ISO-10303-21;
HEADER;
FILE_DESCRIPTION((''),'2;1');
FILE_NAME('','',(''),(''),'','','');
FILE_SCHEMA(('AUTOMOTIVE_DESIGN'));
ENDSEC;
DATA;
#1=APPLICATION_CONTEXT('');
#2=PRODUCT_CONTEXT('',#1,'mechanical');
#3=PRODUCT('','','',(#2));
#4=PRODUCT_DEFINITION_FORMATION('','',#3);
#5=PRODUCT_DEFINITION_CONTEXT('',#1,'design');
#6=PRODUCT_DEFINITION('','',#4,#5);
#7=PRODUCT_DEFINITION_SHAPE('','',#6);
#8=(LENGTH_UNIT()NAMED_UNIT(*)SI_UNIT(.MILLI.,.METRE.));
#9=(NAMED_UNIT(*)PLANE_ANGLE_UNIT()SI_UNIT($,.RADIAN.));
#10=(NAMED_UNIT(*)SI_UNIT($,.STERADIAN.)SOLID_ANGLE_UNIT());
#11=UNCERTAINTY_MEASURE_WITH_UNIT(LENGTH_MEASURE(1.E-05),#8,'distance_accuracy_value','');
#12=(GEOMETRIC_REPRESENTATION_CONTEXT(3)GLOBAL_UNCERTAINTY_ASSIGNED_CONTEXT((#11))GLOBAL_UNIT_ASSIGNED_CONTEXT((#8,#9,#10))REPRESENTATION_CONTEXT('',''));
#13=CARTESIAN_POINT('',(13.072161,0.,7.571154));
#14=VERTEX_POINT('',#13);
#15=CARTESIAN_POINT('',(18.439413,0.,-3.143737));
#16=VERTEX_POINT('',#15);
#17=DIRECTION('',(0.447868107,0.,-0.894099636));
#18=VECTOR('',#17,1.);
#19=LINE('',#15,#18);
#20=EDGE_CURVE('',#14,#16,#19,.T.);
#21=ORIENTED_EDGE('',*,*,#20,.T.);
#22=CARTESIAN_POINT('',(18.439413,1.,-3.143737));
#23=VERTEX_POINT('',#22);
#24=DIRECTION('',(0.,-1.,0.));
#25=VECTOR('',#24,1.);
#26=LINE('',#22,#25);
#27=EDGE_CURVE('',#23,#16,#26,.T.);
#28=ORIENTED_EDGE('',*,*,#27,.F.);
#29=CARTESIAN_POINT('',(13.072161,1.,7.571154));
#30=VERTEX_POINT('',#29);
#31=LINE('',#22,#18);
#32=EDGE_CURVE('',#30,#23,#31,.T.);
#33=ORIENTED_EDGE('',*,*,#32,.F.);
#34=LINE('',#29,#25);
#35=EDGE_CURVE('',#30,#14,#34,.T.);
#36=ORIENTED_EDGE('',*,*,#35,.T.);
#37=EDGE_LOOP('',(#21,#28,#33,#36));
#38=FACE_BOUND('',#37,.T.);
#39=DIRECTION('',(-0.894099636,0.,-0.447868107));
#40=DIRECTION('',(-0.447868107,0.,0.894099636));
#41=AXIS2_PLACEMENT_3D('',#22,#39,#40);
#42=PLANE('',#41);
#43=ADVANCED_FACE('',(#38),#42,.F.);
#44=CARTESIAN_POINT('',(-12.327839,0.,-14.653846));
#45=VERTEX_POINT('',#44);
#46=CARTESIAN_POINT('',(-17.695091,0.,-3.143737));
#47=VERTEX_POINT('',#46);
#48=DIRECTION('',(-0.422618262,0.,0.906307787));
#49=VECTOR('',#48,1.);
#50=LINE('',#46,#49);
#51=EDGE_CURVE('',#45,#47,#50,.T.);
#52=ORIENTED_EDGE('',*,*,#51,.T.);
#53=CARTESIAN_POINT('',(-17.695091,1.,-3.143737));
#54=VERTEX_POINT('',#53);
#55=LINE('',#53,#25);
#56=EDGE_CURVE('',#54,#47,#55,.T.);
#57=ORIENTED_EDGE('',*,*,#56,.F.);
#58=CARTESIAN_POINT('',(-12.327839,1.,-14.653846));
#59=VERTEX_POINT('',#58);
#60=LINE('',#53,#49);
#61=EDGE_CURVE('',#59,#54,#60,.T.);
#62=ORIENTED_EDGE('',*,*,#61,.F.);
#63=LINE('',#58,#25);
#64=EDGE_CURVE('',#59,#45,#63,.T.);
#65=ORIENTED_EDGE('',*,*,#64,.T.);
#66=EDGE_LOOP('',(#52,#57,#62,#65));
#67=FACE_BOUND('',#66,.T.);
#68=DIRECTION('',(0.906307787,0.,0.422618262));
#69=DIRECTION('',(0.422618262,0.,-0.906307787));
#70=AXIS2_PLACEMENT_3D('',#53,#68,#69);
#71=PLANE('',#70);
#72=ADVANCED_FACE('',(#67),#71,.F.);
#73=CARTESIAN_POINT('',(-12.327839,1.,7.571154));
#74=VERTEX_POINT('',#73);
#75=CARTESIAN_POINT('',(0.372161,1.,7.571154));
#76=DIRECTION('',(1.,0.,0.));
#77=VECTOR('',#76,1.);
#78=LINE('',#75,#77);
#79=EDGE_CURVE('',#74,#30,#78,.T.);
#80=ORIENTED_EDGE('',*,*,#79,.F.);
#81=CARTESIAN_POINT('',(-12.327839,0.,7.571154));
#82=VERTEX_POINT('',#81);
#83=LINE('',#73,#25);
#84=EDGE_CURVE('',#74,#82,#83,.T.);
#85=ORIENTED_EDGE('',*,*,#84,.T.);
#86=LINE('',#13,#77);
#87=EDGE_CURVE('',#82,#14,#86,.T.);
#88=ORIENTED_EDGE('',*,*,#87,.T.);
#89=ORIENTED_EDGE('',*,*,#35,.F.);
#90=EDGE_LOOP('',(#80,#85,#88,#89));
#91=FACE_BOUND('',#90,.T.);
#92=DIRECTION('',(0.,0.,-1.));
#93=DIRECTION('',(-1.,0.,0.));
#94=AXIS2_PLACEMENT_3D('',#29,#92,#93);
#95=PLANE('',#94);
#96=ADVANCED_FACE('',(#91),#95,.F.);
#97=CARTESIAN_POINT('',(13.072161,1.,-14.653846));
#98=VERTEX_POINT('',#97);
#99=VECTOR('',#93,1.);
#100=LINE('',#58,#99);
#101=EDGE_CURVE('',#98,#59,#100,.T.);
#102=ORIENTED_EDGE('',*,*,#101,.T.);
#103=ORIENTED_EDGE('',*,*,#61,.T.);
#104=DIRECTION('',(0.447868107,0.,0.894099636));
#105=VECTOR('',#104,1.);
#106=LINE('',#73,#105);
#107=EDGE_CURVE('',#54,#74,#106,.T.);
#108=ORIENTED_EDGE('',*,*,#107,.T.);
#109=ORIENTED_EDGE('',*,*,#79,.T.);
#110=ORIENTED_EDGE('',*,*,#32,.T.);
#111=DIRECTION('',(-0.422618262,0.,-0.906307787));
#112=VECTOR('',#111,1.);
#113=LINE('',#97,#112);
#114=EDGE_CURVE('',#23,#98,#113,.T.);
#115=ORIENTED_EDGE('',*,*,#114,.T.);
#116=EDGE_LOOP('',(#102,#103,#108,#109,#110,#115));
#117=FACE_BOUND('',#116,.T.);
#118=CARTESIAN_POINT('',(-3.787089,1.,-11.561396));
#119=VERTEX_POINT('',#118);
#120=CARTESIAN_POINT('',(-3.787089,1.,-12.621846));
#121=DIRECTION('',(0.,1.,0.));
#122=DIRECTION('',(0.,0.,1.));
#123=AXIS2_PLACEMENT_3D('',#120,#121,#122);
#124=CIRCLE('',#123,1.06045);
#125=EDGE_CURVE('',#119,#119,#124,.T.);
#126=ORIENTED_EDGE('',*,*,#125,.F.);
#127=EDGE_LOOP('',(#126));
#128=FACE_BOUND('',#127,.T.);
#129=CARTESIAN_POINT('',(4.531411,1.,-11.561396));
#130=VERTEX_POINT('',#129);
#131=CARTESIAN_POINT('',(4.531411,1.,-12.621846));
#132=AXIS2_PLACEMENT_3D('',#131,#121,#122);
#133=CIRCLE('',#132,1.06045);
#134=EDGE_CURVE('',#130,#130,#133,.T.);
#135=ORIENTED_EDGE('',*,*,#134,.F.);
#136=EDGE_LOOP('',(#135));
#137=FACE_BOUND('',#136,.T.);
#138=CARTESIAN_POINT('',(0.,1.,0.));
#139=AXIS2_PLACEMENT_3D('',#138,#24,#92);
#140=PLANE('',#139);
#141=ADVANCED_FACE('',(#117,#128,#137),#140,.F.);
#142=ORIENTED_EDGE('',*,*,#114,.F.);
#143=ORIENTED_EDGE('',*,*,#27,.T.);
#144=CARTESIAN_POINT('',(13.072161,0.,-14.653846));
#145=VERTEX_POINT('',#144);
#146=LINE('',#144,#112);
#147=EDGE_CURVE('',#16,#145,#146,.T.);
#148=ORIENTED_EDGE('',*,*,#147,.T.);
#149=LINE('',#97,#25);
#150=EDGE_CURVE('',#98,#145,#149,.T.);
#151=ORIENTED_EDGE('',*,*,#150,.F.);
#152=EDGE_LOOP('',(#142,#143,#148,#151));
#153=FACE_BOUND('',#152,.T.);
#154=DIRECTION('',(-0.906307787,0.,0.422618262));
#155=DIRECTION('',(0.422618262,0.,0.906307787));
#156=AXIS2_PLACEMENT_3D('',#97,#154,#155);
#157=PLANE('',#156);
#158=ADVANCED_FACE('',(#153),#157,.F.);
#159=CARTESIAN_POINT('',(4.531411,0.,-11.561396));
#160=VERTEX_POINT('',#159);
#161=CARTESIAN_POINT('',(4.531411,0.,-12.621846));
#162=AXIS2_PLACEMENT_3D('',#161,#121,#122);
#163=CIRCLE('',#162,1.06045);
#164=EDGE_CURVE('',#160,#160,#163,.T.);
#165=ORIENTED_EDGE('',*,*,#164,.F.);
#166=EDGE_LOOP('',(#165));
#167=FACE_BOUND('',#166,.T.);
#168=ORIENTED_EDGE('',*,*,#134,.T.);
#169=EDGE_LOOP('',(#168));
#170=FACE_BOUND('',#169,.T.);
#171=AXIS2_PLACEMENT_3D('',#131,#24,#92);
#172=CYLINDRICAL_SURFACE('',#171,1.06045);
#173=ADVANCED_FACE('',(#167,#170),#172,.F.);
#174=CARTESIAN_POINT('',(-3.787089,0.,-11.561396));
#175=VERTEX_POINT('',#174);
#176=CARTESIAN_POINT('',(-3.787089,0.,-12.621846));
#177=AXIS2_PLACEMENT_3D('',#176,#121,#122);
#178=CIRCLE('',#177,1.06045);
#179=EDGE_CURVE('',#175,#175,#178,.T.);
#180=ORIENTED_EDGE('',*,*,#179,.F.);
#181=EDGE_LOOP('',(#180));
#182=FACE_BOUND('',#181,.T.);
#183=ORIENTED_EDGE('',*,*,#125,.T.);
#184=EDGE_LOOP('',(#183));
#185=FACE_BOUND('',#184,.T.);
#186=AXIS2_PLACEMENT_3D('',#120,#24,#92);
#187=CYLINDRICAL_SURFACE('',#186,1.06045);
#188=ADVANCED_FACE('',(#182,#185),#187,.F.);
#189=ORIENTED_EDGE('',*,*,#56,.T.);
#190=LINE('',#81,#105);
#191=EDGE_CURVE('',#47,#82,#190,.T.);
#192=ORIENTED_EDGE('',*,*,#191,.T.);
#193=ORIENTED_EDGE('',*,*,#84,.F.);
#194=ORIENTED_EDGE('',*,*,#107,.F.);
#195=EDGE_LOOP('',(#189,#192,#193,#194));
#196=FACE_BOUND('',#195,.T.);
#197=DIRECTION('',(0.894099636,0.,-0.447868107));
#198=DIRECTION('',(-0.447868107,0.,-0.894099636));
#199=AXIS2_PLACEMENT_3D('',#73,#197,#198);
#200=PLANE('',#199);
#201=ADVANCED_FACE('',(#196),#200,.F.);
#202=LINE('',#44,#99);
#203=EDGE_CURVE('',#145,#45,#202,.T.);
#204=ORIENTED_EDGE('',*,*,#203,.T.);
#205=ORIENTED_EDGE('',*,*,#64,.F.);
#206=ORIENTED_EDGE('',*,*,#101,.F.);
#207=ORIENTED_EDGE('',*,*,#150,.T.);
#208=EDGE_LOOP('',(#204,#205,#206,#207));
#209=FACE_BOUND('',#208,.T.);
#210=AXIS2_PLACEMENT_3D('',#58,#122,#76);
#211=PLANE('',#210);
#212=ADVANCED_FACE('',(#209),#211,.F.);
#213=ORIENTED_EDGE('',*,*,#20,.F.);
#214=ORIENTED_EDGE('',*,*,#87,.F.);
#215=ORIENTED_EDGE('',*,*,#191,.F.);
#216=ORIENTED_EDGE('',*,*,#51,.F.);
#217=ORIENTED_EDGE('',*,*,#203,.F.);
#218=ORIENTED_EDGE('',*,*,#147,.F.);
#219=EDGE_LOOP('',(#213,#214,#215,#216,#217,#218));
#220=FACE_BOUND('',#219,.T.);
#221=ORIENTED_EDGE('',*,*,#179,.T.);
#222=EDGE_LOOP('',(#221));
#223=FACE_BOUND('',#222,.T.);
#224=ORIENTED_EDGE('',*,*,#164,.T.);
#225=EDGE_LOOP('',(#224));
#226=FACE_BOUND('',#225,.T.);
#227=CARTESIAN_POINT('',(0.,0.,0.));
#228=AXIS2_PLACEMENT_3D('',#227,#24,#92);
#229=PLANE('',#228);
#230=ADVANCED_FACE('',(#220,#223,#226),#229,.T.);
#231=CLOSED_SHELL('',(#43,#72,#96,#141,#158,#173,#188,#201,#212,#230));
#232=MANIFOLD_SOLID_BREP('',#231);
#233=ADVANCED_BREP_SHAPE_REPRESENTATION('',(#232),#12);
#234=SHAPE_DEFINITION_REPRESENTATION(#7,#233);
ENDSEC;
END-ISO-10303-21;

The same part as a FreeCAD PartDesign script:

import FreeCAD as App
import Part
import Sketcher
from FreeCAD import Vector
Q = App.Units.Quantity

doc = App.newDocument("Part")
body = doc.addObject("PartDesign::Body", "Body")

# Sketch on XZ plane
sketch1 = body.newObject("Sketcher::SketchObject", "Sketch")
sketch1.AttachmentSupport = (doc.getObject("XZ_Plane"), [""])
sketch1.MapMode = "FlatFace"
sketch1.addGeometry([
    Part.LineSegment(Vector(13.1, -14.7, 0), Vector(-12.3, -14.7, 0)),  # 0
    Part.LineSegment(Vector(-12.3, -14.7, 0), Vector(-17.7, -3.1, 0)),  # 1
    Part.LineSegment(Vector(-17.7, -3.1, 0), Vector(-12.3, 7.6, 0)),  # 2
    Part.LineSegment(Vector(-12.3, 7.6, 0), Vector(13.1, 7.6, 0)),  # 3
    Part.LineSegment(Vector(13.1, 7.6, 0), Vector(18.4, -3.1, 0)),  # 4
    Part.LineSegment(Vector(18.4, -3.1, 0), Vector(13.1, -14.7, 0)),  # 5
    Part.Circle(Vector(4.5, -12.6, 0), Vector(0, 0, 1), 1.1),  # 6
    Part.Circle(Vector(-3.8, -12.6, 0), Vector(0, 0, 1), 1.1),  # 7
], False)
sketch1.addConstraint([
    Sketcher.Constraint("Coincident", 0, 2, 1, 1),
    Sketcher.Constraint("Coincident", 1, 2, 2, 1),
    Sketcher.Constraint("Coincident", 2, 2, 3, 1),
    Sketcher.Constraint("Coincident", 3, 2, 4, 1),
    Sketcher.Constraint("Coincident", 4, 2, 5, 1),
    Sketcher.Constraint("Coincident", 5, 2, 0, 1),
    Sketcher.Constraint("Horizontal", 0),
    Sketcher.Constraint("Horizontal", 3),
    Sketcher.Constraint("Equal", 6, 7),
    Sketcher.Constraint("Horizontal", 6, 3, 7, 3),
    Sketcher.Constraint("Horizontal", 1, 2, 4, 2),
    Sketcher.Constraint("Vertical", 0, 2, 2, 2),
    Sketcher.Constraint("Vertical", 3, 2, 5, 2),
    Sketcher.Constraint("Equal", 2, 4),
    Sketcher.Constraint("DistanceX", 0, 2, 0, 1, Q("1 in")),
    Sketcher.Constraint("Angle", 1, Q("115 deg")),
    Sketcher.Constraint("Distance", 1, Q("0.5 in")),
    Sketcher.Constraint("Diameter", 6, Q("0.0835 in")),
    Sketcher.Constraint("DistanceY", 0, 2, 7, 3, Q("0.08 in")),
    Sketcher.Constraint("DistanceY", 7, 3, 2, 2, Q("0.795 in")),
    Sketcher.Constraint("DistanceX", 7, 3, 6, 3, Q("0.3275 in")),
    Sketcher.Constraint("DistanceX", 1, 2, 7, 3, Q("13.908002 mm")),
    Sketcher.Constraint("DistanceX", -1, 1, 6, 3, Q("4.531411 mm")),
    Sketcher.Constraint("DistanceY", 6, 3, -1, 1, Q("12.621846 mm")),
])
pad1 = body.newObject("PartDesign::Pad", "Pad")
pad1.Profile = sketch1
pad1.Length = 1
pad1.Reversed = True

doc.recompute()
